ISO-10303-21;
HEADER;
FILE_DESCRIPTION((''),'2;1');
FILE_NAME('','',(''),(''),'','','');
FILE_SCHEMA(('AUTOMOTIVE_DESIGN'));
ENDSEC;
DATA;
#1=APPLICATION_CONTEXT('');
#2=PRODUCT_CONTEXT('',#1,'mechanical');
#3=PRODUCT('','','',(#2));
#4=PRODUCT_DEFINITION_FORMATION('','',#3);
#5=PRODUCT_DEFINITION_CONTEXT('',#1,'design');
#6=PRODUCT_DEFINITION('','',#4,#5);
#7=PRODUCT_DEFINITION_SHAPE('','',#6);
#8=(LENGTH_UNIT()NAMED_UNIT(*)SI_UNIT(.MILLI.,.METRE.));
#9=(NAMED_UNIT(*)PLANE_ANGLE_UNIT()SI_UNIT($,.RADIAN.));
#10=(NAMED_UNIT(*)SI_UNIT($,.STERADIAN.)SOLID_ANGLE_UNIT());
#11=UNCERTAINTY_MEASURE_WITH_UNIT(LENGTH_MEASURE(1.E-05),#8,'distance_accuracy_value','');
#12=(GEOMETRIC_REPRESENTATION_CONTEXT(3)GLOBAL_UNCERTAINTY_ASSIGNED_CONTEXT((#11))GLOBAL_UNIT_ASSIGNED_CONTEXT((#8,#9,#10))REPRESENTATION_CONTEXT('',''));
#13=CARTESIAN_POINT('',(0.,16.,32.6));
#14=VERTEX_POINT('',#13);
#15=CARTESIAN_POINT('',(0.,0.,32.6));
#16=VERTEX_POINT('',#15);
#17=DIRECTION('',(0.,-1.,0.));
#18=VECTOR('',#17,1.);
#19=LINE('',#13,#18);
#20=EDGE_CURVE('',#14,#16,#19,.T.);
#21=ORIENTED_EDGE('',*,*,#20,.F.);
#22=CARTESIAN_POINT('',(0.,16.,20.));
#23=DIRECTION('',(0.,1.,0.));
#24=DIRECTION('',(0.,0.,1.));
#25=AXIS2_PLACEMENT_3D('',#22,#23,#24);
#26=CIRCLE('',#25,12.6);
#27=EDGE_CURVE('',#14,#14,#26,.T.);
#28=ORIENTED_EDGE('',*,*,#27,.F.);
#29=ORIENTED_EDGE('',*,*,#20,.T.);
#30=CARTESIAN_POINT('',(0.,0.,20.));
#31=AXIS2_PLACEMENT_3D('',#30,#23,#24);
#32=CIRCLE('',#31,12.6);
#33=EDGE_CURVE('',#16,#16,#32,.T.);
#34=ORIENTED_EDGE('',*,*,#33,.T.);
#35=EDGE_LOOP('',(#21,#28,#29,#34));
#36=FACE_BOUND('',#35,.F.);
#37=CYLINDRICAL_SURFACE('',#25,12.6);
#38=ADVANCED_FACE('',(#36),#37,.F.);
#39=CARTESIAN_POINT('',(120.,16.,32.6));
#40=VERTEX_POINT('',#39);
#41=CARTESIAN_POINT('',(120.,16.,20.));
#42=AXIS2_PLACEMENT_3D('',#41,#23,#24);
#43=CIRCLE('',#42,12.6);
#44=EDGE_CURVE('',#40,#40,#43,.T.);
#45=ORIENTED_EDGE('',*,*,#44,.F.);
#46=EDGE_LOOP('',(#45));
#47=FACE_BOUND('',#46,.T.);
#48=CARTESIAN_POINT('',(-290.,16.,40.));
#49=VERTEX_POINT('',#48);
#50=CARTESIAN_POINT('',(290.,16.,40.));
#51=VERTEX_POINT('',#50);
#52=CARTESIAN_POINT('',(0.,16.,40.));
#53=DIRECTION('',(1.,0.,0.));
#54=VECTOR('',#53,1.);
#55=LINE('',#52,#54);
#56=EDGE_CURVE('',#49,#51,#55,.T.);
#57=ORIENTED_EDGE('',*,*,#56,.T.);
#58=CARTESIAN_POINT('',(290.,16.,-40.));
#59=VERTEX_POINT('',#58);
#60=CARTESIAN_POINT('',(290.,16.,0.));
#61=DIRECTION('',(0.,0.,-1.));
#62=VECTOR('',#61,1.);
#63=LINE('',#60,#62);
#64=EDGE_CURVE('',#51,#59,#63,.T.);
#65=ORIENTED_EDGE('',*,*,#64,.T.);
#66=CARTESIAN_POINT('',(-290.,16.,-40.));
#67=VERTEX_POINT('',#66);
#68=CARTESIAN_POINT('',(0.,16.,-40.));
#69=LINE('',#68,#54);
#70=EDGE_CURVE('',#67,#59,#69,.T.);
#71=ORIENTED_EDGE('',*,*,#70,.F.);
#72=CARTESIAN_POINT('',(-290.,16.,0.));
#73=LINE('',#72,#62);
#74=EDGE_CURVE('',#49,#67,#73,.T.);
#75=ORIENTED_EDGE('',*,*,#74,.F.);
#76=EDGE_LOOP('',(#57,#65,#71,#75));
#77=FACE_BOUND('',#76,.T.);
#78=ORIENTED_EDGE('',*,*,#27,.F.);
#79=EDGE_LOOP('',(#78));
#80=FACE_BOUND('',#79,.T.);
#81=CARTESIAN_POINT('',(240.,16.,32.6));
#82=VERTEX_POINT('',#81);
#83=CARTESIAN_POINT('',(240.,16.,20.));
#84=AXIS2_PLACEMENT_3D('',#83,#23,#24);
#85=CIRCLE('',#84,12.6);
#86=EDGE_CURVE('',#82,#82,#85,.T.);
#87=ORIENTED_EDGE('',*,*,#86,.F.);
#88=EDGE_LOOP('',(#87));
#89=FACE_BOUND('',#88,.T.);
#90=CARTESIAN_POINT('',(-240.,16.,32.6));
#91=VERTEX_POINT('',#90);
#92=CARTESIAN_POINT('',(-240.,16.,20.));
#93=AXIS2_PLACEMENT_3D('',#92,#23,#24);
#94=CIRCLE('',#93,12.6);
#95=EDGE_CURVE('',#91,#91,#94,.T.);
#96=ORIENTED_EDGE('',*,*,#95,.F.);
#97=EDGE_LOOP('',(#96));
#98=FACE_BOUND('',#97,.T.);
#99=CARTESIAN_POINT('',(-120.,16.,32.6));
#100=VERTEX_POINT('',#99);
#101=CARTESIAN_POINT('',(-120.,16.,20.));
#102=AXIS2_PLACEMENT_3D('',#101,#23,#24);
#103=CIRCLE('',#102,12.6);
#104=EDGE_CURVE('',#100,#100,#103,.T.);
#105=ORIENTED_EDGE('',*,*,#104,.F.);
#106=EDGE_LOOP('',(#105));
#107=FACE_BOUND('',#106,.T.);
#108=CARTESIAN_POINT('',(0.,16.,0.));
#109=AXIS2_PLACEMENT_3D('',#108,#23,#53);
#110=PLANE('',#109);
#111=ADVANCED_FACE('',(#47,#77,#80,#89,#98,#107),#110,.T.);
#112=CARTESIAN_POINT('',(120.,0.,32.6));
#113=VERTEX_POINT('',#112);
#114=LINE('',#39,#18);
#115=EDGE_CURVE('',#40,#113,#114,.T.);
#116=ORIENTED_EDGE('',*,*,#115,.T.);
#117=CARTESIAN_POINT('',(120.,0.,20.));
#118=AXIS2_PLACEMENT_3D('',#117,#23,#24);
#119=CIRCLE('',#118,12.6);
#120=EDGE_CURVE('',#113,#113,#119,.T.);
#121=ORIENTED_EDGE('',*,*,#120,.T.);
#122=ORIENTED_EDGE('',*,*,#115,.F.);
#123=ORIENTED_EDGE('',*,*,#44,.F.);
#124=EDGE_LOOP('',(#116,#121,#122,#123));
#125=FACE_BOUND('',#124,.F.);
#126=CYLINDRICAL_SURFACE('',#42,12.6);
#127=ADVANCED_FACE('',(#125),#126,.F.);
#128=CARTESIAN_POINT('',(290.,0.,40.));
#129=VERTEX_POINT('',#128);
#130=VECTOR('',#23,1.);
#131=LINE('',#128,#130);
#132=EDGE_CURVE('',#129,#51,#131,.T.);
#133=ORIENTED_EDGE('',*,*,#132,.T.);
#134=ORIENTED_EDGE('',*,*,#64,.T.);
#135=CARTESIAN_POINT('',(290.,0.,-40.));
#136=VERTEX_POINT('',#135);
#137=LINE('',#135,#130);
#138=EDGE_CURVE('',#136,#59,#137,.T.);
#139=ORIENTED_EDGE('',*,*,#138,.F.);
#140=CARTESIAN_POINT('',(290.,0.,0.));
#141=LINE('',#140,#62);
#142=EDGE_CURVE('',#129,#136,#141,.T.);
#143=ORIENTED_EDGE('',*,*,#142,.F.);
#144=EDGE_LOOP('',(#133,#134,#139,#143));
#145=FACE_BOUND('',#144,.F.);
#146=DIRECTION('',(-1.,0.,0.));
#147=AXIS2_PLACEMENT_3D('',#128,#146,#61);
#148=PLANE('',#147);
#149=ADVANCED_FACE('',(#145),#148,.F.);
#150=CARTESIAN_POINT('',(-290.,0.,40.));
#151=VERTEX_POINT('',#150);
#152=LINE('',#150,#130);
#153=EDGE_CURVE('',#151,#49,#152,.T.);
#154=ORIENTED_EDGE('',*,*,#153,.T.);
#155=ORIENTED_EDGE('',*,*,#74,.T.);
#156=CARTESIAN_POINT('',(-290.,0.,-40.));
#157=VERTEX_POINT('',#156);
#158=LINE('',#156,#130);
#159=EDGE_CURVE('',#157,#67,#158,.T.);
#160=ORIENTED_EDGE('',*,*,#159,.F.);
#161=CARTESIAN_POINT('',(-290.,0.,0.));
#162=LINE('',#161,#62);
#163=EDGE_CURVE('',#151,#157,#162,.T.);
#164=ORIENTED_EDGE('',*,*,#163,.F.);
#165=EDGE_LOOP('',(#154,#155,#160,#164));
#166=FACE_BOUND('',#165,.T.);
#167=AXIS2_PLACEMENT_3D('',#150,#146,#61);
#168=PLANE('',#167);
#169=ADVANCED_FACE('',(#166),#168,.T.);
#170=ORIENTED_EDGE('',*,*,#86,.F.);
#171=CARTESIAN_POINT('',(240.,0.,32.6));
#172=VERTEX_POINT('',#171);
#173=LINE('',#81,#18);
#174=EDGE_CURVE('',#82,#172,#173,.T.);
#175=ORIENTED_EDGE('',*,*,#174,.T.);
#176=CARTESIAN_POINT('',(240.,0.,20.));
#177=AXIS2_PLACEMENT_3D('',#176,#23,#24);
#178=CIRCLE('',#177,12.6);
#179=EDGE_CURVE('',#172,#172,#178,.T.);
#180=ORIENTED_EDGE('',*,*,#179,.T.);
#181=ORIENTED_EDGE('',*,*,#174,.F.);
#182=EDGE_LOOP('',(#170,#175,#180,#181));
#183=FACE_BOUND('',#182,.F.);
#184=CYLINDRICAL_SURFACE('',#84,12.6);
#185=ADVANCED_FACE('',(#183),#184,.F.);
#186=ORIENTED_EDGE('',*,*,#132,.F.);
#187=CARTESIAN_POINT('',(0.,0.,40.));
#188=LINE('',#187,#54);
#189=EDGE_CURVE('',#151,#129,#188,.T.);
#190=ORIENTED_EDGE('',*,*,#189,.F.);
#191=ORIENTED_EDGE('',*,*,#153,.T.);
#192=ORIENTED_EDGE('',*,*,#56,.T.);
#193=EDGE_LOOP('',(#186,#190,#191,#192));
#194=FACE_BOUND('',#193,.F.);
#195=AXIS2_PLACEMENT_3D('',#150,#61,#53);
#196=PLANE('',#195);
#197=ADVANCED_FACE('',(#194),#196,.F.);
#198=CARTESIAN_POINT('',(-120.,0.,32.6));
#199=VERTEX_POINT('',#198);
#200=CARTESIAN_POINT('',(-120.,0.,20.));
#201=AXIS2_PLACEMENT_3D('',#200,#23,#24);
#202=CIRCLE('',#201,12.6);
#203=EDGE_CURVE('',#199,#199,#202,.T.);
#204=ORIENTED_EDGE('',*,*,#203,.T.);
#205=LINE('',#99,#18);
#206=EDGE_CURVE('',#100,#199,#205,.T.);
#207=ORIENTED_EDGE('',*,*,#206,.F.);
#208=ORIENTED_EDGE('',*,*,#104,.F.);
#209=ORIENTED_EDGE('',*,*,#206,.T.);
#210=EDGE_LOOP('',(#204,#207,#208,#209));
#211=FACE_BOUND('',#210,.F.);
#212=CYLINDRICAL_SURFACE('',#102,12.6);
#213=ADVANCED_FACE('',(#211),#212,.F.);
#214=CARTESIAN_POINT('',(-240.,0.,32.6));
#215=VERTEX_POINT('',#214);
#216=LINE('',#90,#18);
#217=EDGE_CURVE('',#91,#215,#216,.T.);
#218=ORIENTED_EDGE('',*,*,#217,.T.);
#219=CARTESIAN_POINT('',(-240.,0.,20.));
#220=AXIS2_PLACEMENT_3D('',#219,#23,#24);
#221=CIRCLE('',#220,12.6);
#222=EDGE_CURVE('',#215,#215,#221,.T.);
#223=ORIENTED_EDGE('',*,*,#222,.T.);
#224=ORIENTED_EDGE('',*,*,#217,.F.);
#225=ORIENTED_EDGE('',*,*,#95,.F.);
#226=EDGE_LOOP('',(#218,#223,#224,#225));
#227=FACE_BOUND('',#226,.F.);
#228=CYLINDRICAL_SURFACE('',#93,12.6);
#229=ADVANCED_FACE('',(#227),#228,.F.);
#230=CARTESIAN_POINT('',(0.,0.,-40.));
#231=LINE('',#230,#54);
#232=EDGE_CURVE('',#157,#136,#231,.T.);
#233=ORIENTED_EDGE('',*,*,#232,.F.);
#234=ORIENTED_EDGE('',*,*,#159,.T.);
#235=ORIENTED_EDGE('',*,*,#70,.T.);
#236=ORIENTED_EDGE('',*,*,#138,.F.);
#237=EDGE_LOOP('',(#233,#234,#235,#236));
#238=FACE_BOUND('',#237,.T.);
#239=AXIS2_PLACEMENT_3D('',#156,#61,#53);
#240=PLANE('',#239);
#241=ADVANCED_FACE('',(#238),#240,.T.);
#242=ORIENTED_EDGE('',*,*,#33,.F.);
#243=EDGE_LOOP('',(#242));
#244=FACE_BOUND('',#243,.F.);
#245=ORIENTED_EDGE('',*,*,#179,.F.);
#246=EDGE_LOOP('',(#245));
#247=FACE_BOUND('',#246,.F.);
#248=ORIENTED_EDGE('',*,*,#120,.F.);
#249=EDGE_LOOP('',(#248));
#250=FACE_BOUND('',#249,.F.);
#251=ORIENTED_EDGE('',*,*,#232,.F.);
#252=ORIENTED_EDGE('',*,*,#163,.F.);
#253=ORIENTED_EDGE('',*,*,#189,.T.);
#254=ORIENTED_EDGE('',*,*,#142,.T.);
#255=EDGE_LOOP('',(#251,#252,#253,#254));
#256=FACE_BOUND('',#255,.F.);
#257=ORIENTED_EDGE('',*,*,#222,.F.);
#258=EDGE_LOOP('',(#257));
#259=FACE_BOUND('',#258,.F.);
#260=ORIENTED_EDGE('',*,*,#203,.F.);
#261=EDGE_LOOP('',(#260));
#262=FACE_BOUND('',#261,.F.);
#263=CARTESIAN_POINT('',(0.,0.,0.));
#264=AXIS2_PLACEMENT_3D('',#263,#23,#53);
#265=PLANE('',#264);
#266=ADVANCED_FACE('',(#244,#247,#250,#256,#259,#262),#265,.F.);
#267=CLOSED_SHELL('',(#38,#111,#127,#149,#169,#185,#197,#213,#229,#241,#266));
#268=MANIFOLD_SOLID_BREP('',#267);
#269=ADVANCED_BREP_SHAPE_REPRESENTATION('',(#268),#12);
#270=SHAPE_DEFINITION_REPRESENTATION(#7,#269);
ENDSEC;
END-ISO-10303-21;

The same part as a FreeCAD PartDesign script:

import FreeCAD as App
import Part
import Sketcher

V = App.Vector
Q = App.Units.Quantity

doc = App.newDocument("Part")
body = doc.addObject("PartDesign::Body", "Body")

sketch1 = body.newObject("Sketcher::SketchObject", "Sketch")
sketch1.AttachmentSupport = (doc.getObject("XZ_Plane"), [""])
sketch1.MapMode = "FlatFace"
sketch1.addGeometry([
    Part.LineSegment(V(-290, -40, 0), V(-290, 40, 0)),
    Part.LineSegment(V(-290, 40, 0), V(290, 40, 0)),
    Part.LineSegment(V(290, 40, 0), V(290, -40, 0)),
    Part.LineSegment(V(290, -40, 0), V(-290, -40, 0)),
], False)
sketch1.addConstraint([
    Sketcher.Constraint("Coincident", 0, 2, 1, 1),
    Sketcher.Constraint("Coincident", 1, 2, 2, 1),
    Sketcher.Constraint("Coincident", 2, 2, 3, 1),
    Sketcher.Constraint("Coincident", 3, 2, 0, 1),
    Sketcher.Constraint("Vertical", 0),
    Sketcher.Constraint("Horizontal", 1),
    Sketcher.Constraint("Vertical", 2),
    Sketcher.Constraint("Horizontal", 3),
    Sketcher.Constraint("Symmetric", 0, 2, 2, 2, -1, 1),
    Sketcher.Constraint("DistanceX", 1, 1, 1, 2, Q("580 mm")),
    Sketcher.Constraint("DistanceY", 0, 1, 0, 2, Q("80 mm")),
])
pad1 = body.newObject("PartDesign::Pad", "Pad")
pad1.Profile = sketch1
pad1.Length = 16
pad1.Reversed = True

sketch2 = body.newObject("Sketcher::SketchObject", "Sketch001")
sketch2.AttachmentSupport = (doc.getObject("XZ_Plane"), [""])
sketch2.MapMode = "FlatFace"
sketch2.AttachmentOffset = App.Placement(V(0, 0, -16), App.Rotation())
sketch2.addGeometry(Part.Circle(V(-240, 20, 0), V(0, 0, 1), 12.6), False)
sketch2.addConstraint([
    Sketcher.Constraint("Diameter", 0, Q("25.2 mm")),
    Sketcher.Constraint("DistanceX", 0, 3, -1, 1, Q("240 mm")),
    Sketcher.Constraint("DistanceY", -1, 1, 0, 3, Q("20 mm")),
])
pocket1 = body.newObject("PartDesign::Pocket", "Pocket")
pocket1.Profile = sketch2
pocket1.Length = 16
pocket1.Reversed = True
doc.recompute()

linearpattern = body.newObject("PartDesign::LinearPattern", "LinearPattern")
linearpattern.Originals = [pocket1]
linearpattern.Direction = (doc.getObject("X_Axis"), [""])
linearpattern.Mode = "offset"
linearpattern.Offset = 120
linearpattern.Occurrences = 5
body.Tip = linearpattern

doc.recompute()
